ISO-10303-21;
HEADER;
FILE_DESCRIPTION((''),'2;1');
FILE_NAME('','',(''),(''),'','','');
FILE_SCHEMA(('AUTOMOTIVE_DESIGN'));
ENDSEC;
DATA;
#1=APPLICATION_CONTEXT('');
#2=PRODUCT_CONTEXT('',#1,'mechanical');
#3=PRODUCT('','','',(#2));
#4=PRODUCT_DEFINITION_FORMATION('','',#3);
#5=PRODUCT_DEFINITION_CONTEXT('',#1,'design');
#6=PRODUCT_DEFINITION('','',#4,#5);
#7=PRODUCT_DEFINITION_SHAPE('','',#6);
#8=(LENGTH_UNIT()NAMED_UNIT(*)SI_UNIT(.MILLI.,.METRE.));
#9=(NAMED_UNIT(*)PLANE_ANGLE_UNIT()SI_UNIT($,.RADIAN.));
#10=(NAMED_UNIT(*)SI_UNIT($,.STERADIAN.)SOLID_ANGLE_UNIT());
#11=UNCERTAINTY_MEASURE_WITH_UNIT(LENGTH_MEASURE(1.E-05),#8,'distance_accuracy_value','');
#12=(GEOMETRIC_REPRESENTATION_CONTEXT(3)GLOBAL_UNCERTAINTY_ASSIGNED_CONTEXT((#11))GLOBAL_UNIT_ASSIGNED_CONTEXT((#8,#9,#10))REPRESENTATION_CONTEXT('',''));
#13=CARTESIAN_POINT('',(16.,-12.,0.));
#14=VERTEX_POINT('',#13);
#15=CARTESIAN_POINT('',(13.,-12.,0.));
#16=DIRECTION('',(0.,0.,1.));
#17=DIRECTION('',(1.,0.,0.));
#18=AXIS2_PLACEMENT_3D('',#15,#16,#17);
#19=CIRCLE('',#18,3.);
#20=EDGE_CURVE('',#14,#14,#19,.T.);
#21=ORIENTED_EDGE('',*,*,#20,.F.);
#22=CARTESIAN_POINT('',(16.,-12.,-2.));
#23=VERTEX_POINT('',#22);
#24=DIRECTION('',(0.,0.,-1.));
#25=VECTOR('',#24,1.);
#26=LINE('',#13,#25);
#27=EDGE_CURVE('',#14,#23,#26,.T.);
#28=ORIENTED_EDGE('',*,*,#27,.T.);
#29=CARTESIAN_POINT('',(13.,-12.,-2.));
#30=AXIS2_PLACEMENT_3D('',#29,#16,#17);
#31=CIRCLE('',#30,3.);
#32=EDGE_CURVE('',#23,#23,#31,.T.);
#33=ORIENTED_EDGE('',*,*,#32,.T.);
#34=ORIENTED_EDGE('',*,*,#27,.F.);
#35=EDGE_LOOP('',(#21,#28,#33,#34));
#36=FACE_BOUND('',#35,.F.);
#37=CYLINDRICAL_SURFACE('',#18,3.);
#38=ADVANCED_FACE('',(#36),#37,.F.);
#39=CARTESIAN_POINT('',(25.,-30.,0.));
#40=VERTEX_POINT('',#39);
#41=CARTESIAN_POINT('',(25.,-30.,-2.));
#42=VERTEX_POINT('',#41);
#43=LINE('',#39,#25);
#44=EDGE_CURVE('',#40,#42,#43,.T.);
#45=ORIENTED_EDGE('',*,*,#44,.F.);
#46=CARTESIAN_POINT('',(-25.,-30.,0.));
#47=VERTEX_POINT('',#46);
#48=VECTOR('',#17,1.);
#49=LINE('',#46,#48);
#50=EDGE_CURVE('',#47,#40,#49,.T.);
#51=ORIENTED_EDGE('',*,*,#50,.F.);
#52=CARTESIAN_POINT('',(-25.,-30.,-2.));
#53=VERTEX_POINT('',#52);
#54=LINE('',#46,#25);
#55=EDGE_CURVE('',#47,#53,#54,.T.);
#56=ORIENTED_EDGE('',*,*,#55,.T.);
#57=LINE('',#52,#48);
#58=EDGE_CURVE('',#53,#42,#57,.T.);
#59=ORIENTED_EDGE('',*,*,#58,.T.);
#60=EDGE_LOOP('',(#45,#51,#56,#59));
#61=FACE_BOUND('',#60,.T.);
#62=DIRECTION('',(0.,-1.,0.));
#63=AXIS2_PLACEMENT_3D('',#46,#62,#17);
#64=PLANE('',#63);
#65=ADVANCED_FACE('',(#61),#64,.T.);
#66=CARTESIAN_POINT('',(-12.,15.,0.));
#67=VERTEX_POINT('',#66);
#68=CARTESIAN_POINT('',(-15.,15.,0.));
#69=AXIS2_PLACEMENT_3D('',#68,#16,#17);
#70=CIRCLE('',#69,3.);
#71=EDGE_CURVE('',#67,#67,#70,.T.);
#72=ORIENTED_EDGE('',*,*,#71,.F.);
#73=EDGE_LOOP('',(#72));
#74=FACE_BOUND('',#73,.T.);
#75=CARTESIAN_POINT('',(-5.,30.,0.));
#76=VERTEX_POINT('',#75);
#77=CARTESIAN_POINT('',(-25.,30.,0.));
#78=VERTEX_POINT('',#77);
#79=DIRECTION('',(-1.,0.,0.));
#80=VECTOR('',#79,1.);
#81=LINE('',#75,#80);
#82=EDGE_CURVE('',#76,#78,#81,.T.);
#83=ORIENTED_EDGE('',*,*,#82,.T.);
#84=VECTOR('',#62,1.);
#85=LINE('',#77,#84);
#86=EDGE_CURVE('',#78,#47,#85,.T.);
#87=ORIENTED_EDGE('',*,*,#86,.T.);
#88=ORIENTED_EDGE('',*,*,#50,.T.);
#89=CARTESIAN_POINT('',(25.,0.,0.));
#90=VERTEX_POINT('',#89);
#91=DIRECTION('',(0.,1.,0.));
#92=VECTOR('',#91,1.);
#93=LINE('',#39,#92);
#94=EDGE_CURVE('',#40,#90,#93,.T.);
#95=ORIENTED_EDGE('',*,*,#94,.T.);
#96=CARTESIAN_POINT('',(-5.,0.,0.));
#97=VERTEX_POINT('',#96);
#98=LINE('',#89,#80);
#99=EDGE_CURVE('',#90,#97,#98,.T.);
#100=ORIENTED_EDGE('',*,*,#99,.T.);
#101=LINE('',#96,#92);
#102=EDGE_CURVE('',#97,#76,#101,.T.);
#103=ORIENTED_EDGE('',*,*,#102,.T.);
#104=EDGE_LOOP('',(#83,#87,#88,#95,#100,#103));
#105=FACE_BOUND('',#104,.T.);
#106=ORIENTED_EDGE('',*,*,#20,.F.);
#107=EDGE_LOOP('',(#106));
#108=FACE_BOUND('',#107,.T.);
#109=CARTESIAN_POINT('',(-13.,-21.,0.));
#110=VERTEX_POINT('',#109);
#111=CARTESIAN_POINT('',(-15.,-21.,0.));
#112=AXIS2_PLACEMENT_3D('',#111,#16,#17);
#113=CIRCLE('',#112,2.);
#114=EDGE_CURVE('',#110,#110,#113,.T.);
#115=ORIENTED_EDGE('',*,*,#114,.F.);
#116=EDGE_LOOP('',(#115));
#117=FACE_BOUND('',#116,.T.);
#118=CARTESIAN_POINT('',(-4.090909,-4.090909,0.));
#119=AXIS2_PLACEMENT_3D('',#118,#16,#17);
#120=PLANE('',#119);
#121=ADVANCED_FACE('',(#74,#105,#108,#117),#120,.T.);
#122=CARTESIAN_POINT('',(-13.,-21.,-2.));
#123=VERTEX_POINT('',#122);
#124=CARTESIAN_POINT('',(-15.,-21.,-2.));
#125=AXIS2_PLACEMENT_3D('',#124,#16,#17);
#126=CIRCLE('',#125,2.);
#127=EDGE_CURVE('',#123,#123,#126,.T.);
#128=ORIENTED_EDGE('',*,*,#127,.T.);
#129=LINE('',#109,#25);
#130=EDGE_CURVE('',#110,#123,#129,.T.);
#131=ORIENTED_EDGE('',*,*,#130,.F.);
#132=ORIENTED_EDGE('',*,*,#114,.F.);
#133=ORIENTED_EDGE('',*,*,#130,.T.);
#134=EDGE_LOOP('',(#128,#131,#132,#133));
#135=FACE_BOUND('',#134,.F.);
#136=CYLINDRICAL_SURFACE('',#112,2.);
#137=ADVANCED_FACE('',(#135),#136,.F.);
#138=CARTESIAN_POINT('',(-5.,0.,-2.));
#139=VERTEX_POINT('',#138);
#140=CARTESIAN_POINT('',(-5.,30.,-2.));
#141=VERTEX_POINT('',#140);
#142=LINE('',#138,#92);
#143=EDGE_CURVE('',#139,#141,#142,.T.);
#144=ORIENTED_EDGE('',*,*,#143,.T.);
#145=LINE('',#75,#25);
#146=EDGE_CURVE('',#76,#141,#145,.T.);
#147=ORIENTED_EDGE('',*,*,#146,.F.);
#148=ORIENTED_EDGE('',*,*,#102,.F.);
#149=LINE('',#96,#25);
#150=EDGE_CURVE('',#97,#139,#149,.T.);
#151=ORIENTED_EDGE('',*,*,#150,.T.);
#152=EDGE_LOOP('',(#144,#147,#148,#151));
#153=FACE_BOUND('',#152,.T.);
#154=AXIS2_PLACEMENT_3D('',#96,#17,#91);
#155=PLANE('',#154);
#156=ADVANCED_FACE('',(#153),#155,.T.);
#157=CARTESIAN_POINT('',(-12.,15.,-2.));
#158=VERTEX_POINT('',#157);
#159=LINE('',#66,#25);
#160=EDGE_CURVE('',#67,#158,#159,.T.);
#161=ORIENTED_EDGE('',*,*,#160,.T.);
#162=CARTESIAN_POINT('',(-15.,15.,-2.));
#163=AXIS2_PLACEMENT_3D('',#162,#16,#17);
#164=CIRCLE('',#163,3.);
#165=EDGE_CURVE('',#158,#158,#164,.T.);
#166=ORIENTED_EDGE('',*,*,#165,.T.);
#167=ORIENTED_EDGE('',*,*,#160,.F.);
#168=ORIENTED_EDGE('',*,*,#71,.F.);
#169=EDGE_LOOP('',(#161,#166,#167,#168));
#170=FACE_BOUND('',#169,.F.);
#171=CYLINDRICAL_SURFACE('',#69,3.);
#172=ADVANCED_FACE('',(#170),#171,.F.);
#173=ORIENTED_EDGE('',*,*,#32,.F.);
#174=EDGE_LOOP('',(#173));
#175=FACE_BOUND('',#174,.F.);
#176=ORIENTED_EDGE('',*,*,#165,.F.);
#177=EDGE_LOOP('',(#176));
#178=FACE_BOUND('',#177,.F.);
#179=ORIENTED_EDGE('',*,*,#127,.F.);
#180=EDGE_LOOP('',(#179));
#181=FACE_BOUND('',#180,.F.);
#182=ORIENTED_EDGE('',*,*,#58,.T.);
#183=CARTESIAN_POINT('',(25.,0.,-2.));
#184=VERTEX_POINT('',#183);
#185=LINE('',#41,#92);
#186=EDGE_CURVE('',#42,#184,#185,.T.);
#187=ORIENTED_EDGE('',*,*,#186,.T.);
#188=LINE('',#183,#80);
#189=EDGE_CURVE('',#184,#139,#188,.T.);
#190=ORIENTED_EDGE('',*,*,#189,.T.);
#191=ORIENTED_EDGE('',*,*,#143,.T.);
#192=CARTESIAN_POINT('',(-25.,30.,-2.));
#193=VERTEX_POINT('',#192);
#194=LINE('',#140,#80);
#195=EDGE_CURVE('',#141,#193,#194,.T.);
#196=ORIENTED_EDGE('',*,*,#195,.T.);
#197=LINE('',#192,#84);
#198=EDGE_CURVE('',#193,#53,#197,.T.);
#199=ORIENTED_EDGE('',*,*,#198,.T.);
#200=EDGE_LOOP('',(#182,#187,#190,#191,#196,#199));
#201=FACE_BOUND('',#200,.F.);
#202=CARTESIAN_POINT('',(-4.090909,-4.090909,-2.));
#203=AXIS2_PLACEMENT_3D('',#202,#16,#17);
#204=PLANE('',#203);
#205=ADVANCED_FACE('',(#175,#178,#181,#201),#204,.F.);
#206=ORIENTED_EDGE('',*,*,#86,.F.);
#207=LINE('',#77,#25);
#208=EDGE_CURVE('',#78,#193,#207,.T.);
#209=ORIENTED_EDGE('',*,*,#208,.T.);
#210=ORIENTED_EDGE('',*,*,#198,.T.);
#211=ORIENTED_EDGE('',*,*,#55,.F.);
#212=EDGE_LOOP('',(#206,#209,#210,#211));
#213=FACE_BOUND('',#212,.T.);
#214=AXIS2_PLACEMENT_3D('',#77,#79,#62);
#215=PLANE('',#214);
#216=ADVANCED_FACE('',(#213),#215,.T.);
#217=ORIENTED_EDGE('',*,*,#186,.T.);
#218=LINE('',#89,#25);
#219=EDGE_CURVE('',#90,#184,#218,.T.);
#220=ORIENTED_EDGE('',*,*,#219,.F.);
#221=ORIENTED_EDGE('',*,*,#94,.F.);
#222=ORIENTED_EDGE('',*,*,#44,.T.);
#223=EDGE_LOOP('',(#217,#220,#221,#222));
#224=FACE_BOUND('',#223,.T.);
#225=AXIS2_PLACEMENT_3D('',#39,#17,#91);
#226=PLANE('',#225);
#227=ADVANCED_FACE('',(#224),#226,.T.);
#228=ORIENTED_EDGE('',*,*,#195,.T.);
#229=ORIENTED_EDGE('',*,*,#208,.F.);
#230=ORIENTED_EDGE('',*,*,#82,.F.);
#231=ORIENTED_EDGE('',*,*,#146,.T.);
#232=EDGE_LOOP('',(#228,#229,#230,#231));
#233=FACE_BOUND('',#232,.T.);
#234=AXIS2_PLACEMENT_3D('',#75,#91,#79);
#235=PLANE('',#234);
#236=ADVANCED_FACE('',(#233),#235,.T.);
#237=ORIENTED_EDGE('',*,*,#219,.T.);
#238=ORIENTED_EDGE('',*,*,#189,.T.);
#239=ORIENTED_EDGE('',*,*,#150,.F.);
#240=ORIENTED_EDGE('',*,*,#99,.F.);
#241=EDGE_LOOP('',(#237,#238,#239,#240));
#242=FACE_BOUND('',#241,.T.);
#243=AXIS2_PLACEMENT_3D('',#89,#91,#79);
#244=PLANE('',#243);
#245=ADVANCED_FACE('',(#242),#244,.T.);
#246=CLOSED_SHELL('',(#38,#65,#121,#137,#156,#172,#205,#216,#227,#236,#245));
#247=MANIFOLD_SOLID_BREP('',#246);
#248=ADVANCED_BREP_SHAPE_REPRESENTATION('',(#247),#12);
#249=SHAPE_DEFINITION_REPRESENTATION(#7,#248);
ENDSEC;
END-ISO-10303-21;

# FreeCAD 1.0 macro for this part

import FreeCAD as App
import Part
import Sketcher
from FreeCAD import Vector
Q = App.Units.Quantity

doc = App.newDocument("Part")
params = doc.addObject("Spreadsheet::Sheet", "Params")
for row, (alias, value) in enumerate([
    ("sketch1_diameter", "4 mm"),
    ("sketch1_diameter2", "6 mm"),
    ("sketch1_width", "50 mm"),
    ("sketch1_width2", "30 mm"),
    ("pad1_length", "2 mm"),
], start=1):
    params.set(f"A{row}", alias)
    params.set(f"B{row}", "=" + value)
    params.setAlias(f"B{row}", alias)

body = doc.addObject("PartDesign::Body", "Body")

sketch1 = body.newObject("Sketcher::SketchObject", "Sketch")
sketch1.AttachmentSupport = (doc.getObject("XY_Plane"), [""])
sketch1.MapMode = "FlatFace"
sketch1.addGeometry([
    Part.LineSegment(Vector(-25, -30, 0), Vector(25, -30, 0)),
    Part.LineSegment(Vector(25, -30, 0), Vector(25, 0, 0)),
    Part.LineSegment(Vector(25, 0, 0), Vector(-5, 0, 0)),
    Part.LineSegment(Vector(-5, 0, 0), Vector(-5, 30, 0)),
    Part.LineSegment(Vector(-5, 30, 0), Vector(-25, 30, 0)),
    Part.LineSegment(Vector(-25, 30, 0), Vector(-25, -30, 0)),
    Part.Circle(Vector(-15, -21, 0), Vector(0, 0, 1), 2),
    Part.Circle(Vector(13, -12, 0), Vector(0, 0, 1), 3),
    Part.Circle(Vector(-15, 15, 0), Vector(0, 0, 1), 3),
], False)
sketch1.addConstraint([
    Sketcher.Constraint("Coincident", 0, 2, 1, 1),
    Sketcher.Constraint("Coincident", 1, 2, 2, 1),
    Sketcher.Constraint("Coincident", 2, 2, 3, 1),
    Sketcher.Constraint("Coincident", 3, 2, 4, 1),
    Sketcher.Constraint("Coincident", 4, 2, 5, 1),
    Sketcher.Constraint("Coincident", 5, 2, 0, 1),
    Sketcher.Constraint("Horizontal", 0),
    Sketcher.Constraint("Vertical", 1),
    Sketcher.Constraint("Horizontal", 2),
    Sketcher.Constraint("Vertical", 3),
    Sketcher.Constraint("Horizontal", 4),
    Sketcher.Constraint("Vertical", 5),
    Sketcher.Constraint("Equal", 7, 8),
    Sketcher.Constraint("Symmetric", 0, 2, 4, 2, -1, 1),
    Sketcher.Constraint("PointOnObject", 1, 2, -1),
    Sketcher.Constraint("Vertical", 6, 3, 8, 3),
    Sketcher.Constraint("Equal", 2, 1),
    Sketcher.Constraint("Diameter", 6, Q("4 mm")),
    Sketcher.Constraint("Diameter", 7, Q("6 mm")),
    Sketcher.Constraint("DistanceX", 0, 1, 0, 2, Q("50 mm")),
    Sketcher.Constraint("DistanceX", 2, 2, 2, 1, Q("30 mm")),
    Sketcher.Constraint("DistanceX", 6, 3, -1, 1, Q("15 mm")),
    Sketcher.Constraint("DistanceY", 6, 3, -1, 1, Q("21 mm")),
    Sketcher.Constraint("DistanceX", -1, 1, 7, 3, Q("13 mm")),
    Sketcher.Constraint("DistanceY", 7, 3, -1, 1, Q("12 mm")),
    Sketcher.Constraint("DistanceY", -1, 1, 8, 3, Q("15 mm")),
])
sketch1.setExpression("Constraints[17]", "Params.sketch1_diameter")
sketch1.setExpression("Constraints[18]", "Params.sketch1_diameter2")
sketch1.setExpression("Constraints[19]", "Params.sketch1_width")
sketch1.setExpression("Constraints[20]", "Params.sketch1_width2")
pad1 = body.newObject("PartDesign::Pad", "Pad")
pad1.Profile = sketch1
pad1.setExpression("Length", "Params.pad1_length")
pad1.Reversed = True

doc.recompute()
